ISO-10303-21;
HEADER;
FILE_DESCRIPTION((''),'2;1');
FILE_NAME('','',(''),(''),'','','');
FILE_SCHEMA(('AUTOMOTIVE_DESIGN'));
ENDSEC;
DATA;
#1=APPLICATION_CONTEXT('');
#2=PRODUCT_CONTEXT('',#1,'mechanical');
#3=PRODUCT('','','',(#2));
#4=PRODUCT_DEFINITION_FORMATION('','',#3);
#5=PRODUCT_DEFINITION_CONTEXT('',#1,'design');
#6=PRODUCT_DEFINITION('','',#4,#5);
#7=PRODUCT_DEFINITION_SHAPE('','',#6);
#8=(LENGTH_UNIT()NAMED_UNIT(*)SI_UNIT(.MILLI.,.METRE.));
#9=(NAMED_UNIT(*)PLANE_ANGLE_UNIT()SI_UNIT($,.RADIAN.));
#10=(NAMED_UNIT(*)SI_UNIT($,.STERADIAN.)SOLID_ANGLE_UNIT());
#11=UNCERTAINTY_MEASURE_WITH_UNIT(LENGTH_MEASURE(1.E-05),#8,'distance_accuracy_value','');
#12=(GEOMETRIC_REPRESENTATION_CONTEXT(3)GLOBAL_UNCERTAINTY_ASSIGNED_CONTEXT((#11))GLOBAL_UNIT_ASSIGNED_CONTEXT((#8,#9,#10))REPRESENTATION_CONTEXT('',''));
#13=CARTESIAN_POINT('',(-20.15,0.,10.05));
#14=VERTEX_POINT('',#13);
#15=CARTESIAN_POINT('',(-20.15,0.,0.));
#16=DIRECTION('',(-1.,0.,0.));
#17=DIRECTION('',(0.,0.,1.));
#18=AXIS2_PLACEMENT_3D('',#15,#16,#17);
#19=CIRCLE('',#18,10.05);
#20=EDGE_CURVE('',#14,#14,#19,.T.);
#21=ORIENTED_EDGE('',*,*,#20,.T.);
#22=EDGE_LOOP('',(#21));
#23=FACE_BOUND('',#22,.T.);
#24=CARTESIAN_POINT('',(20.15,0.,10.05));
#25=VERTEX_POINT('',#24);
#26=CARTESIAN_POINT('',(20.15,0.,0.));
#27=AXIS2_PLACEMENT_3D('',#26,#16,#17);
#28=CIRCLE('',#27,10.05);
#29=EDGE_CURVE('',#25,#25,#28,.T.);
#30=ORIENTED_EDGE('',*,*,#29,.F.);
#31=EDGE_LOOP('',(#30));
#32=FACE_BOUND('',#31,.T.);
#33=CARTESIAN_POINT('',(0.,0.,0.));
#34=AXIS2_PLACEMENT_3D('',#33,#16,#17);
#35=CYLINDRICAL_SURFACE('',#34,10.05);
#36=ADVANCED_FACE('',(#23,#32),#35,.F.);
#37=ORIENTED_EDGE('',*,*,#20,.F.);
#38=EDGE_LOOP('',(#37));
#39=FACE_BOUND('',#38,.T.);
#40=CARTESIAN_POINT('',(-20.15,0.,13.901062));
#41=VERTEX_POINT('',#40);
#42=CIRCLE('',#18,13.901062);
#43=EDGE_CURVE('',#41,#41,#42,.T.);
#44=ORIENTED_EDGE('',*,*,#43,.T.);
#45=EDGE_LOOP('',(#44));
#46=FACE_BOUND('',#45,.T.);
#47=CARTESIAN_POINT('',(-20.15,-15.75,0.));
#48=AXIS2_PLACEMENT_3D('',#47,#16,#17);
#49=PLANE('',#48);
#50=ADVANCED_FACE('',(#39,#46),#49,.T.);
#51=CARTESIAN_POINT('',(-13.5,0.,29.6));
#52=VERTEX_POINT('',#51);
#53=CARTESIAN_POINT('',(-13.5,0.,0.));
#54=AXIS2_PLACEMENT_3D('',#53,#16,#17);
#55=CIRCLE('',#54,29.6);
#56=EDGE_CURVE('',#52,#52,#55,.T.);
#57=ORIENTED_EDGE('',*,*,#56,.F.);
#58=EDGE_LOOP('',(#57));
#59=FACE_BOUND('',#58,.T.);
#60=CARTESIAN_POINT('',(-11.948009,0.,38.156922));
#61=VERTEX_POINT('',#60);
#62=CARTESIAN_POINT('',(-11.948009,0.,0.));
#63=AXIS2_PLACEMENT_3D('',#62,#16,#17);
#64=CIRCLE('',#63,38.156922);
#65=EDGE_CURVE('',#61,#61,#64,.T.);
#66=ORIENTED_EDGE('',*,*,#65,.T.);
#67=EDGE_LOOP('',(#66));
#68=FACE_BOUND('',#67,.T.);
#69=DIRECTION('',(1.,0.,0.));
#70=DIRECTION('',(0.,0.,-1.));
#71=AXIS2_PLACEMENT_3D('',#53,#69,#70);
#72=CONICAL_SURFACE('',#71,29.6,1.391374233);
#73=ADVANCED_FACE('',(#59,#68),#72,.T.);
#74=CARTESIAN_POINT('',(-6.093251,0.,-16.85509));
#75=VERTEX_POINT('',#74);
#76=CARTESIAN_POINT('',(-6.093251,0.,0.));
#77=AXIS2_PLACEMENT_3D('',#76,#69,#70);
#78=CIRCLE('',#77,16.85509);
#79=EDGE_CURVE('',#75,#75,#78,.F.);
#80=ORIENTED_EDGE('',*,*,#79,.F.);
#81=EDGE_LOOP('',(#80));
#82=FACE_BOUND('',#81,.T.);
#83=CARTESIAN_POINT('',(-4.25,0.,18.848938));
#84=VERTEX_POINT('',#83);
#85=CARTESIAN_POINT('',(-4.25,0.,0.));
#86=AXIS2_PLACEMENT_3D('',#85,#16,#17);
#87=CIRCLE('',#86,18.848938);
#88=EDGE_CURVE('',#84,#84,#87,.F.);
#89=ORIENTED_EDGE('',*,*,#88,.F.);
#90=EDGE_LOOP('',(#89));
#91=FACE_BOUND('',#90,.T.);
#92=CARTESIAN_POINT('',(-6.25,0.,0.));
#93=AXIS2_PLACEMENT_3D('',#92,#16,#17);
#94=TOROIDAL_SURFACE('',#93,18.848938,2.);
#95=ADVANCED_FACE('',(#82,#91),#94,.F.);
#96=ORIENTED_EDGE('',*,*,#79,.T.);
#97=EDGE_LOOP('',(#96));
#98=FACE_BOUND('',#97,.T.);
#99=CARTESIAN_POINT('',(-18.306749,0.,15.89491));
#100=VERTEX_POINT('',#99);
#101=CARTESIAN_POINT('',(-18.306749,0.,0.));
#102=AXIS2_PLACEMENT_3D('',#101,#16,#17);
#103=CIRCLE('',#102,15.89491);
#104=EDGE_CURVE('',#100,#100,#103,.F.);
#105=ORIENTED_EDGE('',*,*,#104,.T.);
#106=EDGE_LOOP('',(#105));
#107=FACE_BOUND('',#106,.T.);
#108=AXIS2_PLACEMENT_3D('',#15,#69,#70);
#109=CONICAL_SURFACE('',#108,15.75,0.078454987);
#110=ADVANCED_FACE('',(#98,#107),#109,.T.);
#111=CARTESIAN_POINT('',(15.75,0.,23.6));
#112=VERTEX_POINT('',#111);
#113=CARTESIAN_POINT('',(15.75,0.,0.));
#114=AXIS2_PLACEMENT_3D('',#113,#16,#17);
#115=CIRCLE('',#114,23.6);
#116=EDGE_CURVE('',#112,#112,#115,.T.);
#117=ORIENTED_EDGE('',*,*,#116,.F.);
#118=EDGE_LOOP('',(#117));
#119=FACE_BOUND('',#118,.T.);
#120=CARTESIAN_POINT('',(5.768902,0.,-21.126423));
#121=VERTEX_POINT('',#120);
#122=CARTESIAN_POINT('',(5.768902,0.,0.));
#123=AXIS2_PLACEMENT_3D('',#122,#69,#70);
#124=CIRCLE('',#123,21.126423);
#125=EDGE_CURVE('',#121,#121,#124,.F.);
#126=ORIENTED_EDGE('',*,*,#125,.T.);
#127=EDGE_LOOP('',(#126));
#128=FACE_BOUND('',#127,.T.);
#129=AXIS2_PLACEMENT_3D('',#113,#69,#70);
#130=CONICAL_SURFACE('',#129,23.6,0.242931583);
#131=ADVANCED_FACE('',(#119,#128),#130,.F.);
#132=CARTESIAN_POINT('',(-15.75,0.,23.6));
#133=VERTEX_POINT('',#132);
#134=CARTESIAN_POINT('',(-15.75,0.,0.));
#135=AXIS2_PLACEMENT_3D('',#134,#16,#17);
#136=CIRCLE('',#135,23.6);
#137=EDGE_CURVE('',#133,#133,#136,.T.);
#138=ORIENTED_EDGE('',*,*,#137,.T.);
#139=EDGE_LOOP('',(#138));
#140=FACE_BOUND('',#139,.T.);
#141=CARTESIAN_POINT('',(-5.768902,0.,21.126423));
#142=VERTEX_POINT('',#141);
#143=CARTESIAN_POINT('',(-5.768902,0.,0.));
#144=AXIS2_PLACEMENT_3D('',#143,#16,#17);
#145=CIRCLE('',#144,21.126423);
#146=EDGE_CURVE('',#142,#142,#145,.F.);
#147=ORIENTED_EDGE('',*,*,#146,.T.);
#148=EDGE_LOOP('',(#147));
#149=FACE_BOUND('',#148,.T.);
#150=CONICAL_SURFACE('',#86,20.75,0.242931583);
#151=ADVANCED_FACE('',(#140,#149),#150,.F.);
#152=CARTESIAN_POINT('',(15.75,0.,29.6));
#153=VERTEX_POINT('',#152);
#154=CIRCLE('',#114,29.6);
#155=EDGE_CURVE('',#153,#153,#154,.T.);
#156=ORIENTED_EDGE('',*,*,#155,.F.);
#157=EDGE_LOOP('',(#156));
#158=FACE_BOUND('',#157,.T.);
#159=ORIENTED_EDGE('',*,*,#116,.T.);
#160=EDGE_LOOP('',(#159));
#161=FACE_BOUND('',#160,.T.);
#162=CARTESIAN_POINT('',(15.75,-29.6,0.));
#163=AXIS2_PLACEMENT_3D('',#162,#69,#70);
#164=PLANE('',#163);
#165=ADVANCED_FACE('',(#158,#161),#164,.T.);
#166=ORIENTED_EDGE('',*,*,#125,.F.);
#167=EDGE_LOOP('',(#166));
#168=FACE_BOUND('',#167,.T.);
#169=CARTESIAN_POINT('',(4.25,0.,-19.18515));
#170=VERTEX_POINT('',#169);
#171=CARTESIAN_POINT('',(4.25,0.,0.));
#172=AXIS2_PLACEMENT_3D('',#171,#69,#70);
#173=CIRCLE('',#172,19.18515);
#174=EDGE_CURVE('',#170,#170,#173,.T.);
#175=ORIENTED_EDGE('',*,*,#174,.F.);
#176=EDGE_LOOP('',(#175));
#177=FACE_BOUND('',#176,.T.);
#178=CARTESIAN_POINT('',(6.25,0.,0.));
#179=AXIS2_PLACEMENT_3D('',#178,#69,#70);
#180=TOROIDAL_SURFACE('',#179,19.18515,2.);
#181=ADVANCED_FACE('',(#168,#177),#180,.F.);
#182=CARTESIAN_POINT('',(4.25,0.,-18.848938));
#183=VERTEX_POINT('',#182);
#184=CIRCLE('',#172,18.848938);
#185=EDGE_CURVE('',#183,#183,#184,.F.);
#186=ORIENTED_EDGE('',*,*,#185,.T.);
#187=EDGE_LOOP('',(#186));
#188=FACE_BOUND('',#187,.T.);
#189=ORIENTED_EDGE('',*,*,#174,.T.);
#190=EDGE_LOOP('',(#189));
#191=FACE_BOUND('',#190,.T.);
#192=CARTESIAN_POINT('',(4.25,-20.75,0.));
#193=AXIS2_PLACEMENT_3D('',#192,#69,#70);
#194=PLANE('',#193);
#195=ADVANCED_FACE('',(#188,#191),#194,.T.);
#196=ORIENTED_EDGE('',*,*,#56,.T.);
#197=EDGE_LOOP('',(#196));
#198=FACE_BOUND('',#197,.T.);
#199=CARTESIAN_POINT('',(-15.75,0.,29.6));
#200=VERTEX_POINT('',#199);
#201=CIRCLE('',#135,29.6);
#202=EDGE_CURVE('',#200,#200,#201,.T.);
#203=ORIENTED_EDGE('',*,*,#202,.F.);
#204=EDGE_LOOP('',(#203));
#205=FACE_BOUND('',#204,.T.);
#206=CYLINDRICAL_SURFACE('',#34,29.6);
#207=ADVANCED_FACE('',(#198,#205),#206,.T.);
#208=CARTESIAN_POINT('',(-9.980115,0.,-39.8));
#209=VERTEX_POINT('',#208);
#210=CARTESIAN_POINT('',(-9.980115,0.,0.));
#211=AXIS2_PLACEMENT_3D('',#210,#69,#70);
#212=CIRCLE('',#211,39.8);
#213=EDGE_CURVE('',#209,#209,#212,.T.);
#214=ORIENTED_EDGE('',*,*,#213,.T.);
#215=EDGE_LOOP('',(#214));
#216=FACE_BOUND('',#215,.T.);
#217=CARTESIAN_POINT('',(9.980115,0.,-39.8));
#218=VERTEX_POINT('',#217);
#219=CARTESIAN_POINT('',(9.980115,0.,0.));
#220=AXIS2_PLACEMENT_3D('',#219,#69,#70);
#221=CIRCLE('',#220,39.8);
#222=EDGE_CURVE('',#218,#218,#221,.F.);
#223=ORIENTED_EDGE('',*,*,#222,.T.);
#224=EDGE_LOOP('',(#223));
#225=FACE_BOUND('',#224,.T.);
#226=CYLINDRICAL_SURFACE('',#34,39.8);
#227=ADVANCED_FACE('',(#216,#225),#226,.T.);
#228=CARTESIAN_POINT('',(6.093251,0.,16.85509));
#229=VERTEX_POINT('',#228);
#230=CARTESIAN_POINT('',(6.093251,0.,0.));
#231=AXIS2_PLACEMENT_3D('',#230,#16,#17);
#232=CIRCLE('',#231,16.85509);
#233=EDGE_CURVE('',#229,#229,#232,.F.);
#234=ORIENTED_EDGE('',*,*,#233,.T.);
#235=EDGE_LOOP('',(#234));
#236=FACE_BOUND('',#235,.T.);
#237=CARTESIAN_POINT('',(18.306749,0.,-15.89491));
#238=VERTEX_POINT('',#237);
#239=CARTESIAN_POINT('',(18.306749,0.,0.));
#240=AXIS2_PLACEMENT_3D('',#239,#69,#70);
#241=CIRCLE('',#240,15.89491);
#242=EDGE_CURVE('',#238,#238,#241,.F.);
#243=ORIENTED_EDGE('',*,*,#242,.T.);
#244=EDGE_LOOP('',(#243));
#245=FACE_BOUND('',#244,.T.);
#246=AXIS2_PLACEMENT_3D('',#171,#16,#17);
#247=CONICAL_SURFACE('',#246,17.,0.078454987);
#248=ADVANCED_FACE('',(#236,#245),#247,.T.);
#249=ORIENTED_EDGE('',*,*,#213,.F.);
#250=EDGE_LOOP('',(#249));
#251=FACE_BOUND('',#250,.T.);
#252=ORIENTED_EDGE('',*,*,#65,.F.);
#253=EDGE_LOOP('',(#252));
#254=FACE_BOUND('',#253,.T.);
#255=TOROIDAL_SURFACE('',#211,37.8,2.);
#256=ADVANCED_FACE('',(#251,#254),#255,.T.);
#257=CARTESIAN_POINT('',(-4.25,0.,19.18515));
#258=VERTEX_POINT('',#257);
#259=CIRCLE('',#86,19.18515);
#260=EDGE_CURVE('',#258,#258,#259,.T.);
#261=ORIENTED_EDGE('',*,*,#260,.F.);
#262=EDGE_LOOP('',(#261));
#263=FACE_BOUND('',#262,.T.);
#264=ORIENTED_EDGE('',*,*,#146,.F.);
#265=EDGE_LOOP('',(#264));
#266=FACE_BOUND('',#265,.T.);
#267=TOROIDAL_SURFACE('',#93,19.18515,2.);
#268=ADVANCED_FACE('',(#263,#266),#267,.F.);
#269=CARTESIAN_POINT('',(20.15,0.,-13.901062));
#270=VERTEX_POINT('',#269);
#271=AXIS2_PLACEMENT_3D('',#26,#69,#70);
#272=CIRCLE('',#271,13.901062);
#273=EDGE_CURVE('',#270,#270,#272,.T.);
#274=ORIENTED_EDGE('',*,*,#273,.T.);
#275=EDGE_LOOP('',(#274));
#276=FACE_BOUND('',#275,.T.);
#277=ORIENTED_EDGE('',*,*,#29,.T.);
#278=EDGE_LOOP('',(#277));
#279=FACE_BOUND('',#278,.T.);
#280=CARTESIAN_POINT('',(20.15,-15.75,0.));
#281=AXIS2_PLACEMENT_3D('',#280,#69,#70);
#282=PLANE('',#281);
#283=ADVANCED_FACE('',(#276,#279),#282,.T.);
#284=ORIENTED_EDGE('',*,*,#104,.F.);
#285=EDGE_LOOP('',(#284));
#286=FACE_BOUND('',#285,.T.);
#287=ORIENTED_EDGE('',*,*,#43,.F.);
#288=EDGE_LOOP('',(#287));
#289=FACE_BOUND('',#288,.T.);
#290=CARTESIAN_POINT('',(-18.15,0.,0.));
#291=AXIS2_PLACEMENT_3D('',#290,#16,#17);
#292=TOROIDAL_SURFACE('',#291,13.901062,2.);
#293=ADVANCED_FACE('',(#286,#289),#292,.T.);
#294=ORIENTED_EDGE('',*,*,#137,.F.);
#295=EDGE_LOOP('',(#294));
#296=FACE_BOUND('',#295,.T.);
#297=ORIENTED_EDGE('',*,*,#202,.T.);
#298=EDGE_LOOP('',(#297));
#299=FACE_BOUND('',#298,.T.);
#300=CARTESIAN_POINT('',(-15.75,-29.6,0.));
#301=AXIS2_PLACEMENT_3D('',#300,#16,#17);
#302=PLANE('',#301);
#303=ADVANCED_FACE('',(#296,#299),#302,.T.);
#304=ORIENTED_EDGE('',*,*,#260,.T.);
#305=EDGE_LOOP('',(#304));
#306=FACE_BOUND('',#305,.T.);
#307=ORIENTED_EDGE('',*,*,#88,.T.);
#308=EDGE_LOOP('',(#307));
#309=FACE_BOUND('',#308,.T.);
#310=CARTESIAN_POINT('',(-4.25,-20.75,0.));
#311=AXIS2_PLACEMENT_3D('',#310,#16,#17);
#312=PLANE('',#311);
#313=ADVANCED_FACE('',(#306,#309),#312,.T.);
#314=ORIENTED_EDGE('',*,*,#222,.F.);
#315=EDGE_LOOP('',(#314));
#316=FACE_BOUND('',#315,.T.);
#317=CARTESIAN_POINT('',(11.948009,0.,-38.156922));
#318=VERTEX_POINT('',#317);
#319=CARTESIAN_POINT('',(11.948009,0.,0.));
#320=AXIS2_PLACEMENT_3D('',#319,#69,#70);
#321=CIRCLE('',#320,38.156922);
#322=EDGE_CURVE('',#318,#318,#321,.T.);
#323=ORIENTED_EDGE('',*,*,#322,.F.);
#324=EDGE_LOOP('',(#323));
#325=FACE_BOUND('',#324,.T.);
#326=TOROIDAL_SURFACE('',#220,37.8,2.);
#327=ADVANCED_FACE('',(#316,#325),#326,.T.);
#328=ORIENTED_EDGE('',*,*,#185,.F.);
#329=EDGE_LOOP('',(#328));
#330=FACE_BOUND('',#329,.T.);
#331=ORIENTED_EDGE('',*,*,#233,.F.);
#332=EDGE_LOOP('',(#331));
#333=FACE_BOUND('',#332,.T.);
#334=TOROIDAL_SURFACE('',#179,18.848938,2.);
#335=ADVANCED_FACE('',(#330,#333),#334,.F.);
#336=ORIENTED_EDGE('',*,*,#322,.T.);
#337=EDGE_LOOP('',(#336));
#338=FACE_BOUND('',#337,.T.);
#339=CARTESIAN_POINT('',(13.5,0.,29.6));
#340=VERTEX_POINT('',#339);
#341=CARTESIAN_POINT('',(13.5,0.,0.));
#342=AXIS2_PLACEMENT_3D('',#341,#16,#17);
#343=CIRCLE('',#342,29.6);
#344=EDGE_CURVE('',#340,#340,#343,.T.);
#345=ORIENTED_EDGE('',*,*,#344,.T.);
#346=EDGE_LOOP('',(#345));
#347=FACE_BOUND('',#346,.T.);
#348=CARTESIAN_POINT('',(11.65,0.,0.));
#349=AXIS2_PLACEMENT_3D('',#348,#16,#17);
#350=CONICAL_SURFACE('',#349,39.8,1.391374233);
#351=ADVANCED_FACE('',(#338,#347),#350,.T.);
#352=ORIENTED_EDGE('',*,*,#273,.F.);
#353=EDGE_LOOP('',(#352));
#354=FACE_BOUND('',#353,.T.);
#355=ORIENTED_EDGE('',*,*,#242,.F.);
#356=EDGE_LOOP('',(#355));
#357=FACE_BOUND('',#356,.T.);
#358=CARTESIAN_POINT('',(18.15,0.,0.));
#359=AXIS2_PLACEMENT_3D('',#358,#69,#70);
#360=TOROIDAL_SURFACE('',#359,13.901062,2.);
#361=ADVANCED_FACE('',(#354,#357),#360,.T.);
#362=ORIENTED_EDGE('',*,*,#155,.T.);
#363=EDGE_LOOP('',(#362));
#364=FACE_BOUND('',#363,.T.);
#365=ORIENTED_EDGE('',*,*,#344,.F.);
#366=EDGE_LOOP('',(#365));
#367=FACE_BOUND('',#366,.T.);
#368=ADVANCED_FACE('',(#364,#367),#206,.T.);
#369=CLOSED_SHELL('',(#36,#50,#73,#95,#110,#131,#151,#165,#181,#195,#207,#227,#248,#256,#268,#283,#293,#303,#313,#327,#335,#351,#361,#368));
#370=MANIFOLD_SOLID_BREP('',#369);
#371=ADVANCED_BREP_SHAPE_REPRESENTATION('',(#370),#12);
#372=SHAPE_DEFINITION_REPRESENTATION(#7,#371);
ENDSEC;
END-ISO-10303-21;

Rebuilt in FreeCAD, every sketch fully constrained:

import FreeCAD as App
import Part
import Sketcher
from FreeCAD import Vector


def edges_at(feature, points):
    """Names of the edges that pass closest to the given points."""
    edges = feature.Shape.Edges
    near = lambda p: min(range(len(edges)), key=lambda i: edges[i].distToShape(Part.Vertex(*p))[0])
    return sorted({f"Edge{near(p) + 1}" for p in points})

doc = App.newDocument("Part")
params = doc.addObject("Spreadsheet::Sheet", "Params")
for row, (alias, value) in enumerate([
    ("sketch1_height", "6 mm"),
    ("sketch1_width", "23.3 mm"),
    ("sketch1_width2", "40.3 mm"),
    ("sketch1_height2", "5.7 mm"),
    ("sketch1_width3", "2.25 mm"),
    ("revolution_angle", "360 deg"),
    ("fillet_radius", "2 mm"),
], start=1):
    params.set(f"A{row}", alias)
    params.set(f"B{row}", "=" + value)
    params.setAlias(f"B{row}", alias)

body = doc.addObject("PartDesign::Body", "Body")

sketch1 = body.newObject("Sketcher::SketchObject", "Sketch")
sketch1.AttachmentSupport = (doc.getObject("XY_Plane"), [""])
sketch1.MapMode = "FlatFace"
sketch1.addGeometry([
    Part.LineSegment(Vector(-11.7, -39.8, 0), Vector(11.7, -39.8, 0)),
    Part.LineSegment(Vector(11.7, -39.8, 0), Vector(13.5, -29.6, 0)),
    Part.LineSegment(Vector(13.5, -29.6, 0), Vector(15.8, -29.6, 0)),
    Part.LineSegment(Vector(15.8, -29.6, 0), Vector(15.8, -23.6, 0)),
    Part.LineSegment(Vector(15.8, -23.6, 0), Vector(4.2, -20.8, 0)),
    Part.LineSegment(Vector(4.2, -20.8, 0), Vector(4.2, -17, 0)),
    Part.LineSegment(Vector(4.2, -17, 0), Vector(20.1, -15.8, 0)),
    Part.LineSegment(Vector(20.1, -15.8, 0), Vector(20.1, -10.1, 0)),
    Part.LineSegment(Vector(20.1, -10.1, 0), Vector(-20.1, -10.1, 0)),
    Part.LineSegment(Vector(-20.1, -10.1, 0), Vector(-20.1, -15.8, 0)),
    Part.LineSegment(Vector(-20.1, -15.8, 0), Vector(-4.2, -17, 0)),
    Part.LineSegment(Vector(-4.2, -17, 0), Vector(-4.2, -20.8, 0)),
    Part.LineSegment(Vector(-4.2, -20.8, 0), Vector(-15.8, -23.6, 0)),
    Part.LineSegment(Vector(-15.8, -23.6, 0), Vector(-15.8, -29.6, 0)),
    Part.LineSegment(Vector(-15.8, -29.6, 0), Vector(-13.5, -29.6, 0)),
    Part.LineSegment(Vector(-13.5, -29.6, 0), Vector(-11.7, -39.8, 0)),
], False)
sketch1.addConstraint([
    Sketcher.Constraint("Coincident", 0, 2, 1, 1),
    Sketcher.Constraint("Coincident", 1, 2, 2, 1),
    Sketcher.Constraint("Coincident", 2, 2, 3, 1),
    Sketcher.Constraint("Coincident", 3, 2, 4, 1),
    Sketcher.Constraint("Coincident", 4, 2, 5, 1),
    Sketcher.Constraint("Coincident", 5, 2, 6, 1),
    Sketcher.Constraint("Coincident", 6, 2, 7, 1),
    Sketcher.Constraint("Coincident", 7, 2, 8, 1),
    Sketcher.Constraint("Coincident", 8, 2, 9, 1),
    Sketcher.Constraint("Coincident", 9, 2, 10, 1),
    Sketcher.Constraint("Coincident", 10, 2, 11, 1),
    Sketcher.Constraint("Coincident", 11, 2, 12, 1),
    Sketcher.Constraint("Coincident", 12, 2, 13, 1),
    Sketcher.Constraint("Coincident", 13, 2, 14, 1),
    Sketcher.Constraint("Coincident", 14, 2, 15, 1),
    Sketcher.Constraint("Coincident", 15, 2, 0, 1),
    Sketcher.Constraint("Horizontal", 0),
    Sketcher.Constraint("Horizontal", 2),
    Sketcher.Constraint("Vertical", 3),
    Sketcher.Constraint("Vertical", 5),
    Sketcher.Constraint("Vertical", 7),
    Sketcher.Constraint("Horizontal", 8),
    Sketcher.Constraint("Vertical", 9),
    Sketcher.Constraint("Vertical", 11),
    Sketcher.Constraint("Vertical", 13),
    Sketcher.Constraint("Horizontal", 14),
    Sketcher.Constraint("Symmetric", 6, 2, 9, 2, -2),
    Sketcher.Constraint("Symmetric", 5, 2, 10, 2, -2),
    Sketcher.Constraint("Symmetric", 3, 2, 12, 2, -2),
    Sketcher.Constraint("Symmetric", 1, 2, 14, 2, -2),
    Sketcher.Constraint("Horizontal", 4, 2, 11, 2),
    Sketcher.Constraint("Equal", 1, 15),
    Sketcher.Constraint("DistanceY", 3, 1, 3, 2, 6.0),
    Sketcher.Constraint("DistanceX", 0, 1, 0, 2, 23.3),
    Sketcher.Constraint("DistanceX", 8, 2, 8, 1, 40.3),
    Sketcher.Constraint("DistanceY", 7, 1, 7, 2, 5.7),
    Sketcher.Constraint("DistanceY", 5, 2, -1, 1, 17.0),
    Sketcher.Constraint("DistanceY", 4, 2, 6, 2, 5.0),
    Sketcher.Constraint("DistanceX", 10, 2, 3, 2, 20.0),
    Sketcher.Constraint("DistanceX", 2, 1, 2, 2, 2.25),
    Sketcher.Constraint("DistanceY", 5, 1, 5, 2, 3.75),
    Sketcher.Constraint("DistanceY", 0, 2, -1, 1, 39.8),
    Sketcher.Constraint("DistanceX", -1, 1, 1, 2, 13.5),
    Sketcher.Constraint("DistanceY", 1, 2, -1, 1, 29.6),
])
sketch1.setExpression("Constraints[32]", "Params.sketch1_height")
sketch1.setExpression("Constraints[33]", "Params.sketch1_width")
sketch1.setExpression("Constraints[34]", "Params.sketch1_width2")
sketch1.setExpression("Constraints[35]", "Params.sketch1_height2")
sketch1.setExpression("Constraints[39]", "Params.sketch1_width3")
revolution = body.newObject("PartDesign::Revolution", "Revolution")
revolution.Profile = sketch1
revolution.ReferenceAxis = (sketch1, ["H_Axis"])
revolution.setExpression("Angle", "Params.revolution_angle")
doc.recompute()

fillet = body.newObject("PartDesign::Fillet", "Fillet")
fillet.Base = (revolution, edges_at(revolution, [
    (11.65, 0, -39.8),
    (-11.65, 0, -39.8),
    (-4.25, 0, -20.75),
    (-4.25, 0, -17),
    (-20.15, 0, -15.75),
    (20.15, 0, -15.75),
    (4.25, 0, -17),
    (4.25, 0, -20.75),
]))
fillet.setExpression("Radius", "Params.fillet_radius")

doc.recompute()
